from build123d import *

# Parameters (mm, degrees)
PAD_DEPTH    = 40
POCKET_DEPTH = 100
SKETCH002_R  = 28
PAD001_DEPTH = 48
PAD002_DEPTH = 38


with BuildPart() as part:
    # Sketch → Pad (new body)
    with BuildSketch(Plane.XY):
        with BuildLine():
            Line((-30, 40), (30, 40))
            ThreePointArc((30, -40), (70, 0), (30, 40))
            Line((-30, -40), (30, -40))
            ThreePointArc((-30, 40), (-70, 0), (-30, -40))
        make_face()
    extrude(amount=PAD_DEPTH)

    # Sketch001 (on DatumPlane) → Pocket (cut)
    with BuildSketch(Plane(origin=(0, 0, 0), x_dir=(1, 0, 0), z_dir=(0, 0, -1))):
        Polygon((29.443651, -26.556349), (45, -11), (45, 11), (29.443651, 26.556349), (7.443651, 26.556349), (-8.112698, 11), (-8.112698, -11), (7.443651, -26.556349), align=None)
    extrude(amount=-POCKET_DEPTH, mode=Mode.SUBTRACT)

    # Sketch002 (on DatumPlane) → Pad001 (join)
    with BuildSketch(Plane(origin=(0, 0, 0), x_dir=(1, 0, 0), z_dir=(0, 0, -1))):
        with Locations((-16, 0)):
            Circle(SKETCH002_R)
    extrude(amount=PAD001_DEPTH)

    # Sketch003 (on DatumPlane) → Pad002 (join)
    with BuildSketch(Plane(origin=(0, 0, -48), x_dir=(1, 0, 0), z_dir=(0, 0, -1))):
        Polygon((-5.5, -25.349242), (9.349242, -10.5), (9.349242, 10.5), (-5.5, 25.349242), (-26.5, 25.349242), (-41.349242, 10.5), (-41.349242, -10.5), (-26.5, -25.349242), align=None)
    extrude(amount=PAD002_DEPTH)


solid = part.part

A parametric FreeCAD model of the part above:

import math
import FreeCAD as App
import Part
import Sketcher

V = App.Vector

doc = App.newDocument("Part")
body = doc.addObject("PartDesign::Body", "Body")

# Sketch on XY plane
sketch1 = body.newObject("Sketcher::SketchObject", "Sketch")
sketch1.AttachmentSupport = (doc.getObject("XY_Plane"), [""])
sketch1.MapMode = "FlatFace"
sketch1.addGeometry(Part.LineSegment(V(30, 40, 0), V(-30, 40, 0)), False)
sketch1.addGeometry(Part.ArcOfCircle(Part.Circle(V(-30, 0, 0), V(0, 0, 1), 40), math.radians(90), math.radians(270)), False)
sketch1.addGeometry(Part.LineSegment(V(-30, -40, 0), V(30, -40, 0)), False)
sketch1.addGeometry(Part.ArcOfCircle(Part.Circle(V(30, 0, 0), V(0, 0, 1), 40), math.radians(-90), math.radians(90)), False)
sketch1.addConstraint(Sketcher.Constraint("Tangent", 0, 2, 1, 1))
sketch1.addConstraint(Sketcher.Constraint("Tangent", 1, 2, 2, 1))
sketch1.addConstraint(Sketcher.Constraint("Tangent", 2, 2, 3, 1))
sketch1.addConstraint(Sketcher.Constraint("Tangent", 3, 2, 0, 1))
sketch1.addConstraint(Sketcher.Constraint("Horizontal", 0))
sketch1.addConstraint(Sketcher.Constraint("Horizontal", 2))
sketch1.addConstraint(Sketcher.Constraint("Symmetric", 1, 3, 3, 3, -1, 1))
sketch1.addConstraint(Sketcher.Constraint("Radius", 1, 40.0))
sketch1.addConstraint(Sketcher.Constraint("DistanceX", 0, 2, 0, 1, 60.0))
pad1 = body.newObject("PartDesign::Pad", "Pad")
pad1.Profile = sketch1
pad1.Length = 40

# Sketch on XY plane
sketch2 = body.newObject("Sketcher::SketchObject", "Sketch001")
sketch2.AttachmentSupport = (doc.getObject("XY_Plane"), [""])
sketch2.MapMode = "FlatFace"
sketch2.addGeometry(Part.LineSegment(V(29, 27, 0), V(45, 11, 0)), False)
sketch2.addGeometry(Part.LineSegment(V(45, 11, 0), V(45, -11, 0)), False)
sketch2.addGeometry(Part.LineSegment(V(45, -11, 0), V(29, -27, 0)), False)
sketch2.addGeometry(Part.LineSegment(V(29, -27, 0), V(7, -27, 0)), False)
sketch2.addGeometry(Part.LineSegment(V(7, -27, 0), V(-8, -11, 0)), False)
sketch2.addGeometry(Part.LineSegment(V(-8, -11, 0), V(-8, 11, 0)), False)
sketch2.addGeometry(Part.LineSegment(V(-8, 11, 0), V(7, 27, 0)), False)
sketch2.addGeometry(Part.LineSegment(V(7, 27, 0), V(29, 27, 0)), False)
sketch2.addConstraint(Sketcher.Constraint("Coincident", 0, 2, 1, 1))
sketch2.addConstraint(Sketcher.Constraint("Coincident", 1, 2, 2, 1))
sketch2.addConstraint(Sketcher.Constraint("Coincident", 2, 2, 3, 1))
sketch2.addConstraint(Sketcher.Constraint("Coincident", 3, 2, 4, 1))
sketch2.addConstraint(Sketcher.Constraint("Coincident", 4, 2, 5, 1))
sketch2.addConstraint(Sketcher.Constraint("Coincident", 5, 2, 6, 1))
sketch2.addConstraint(Sketcher.Constraint("Coincident", 6, 2, 7, 1))
sketch2.addConstraint(Sketcher.Constraint("Coincident", 7, 2, 0, 1))
sketch2.addConstraint(Sketcher.Constraint("Vertical", 1))
sketch2.addConstraint(Sketcher.Constraint("Horizontal", 3))
sketch2.addConstraint(Sketcher.Constraint("Vertical", 5))
sketch2.addConstraint(Sketcher.Constraint("Horizontal", 7))
sketch2.addConstraint(Sketcher.Constraint("Symmetric", 3, 2, 6, 2, -1))
sketch2.addConstraint(Sketcher.Constraint("Perpendicular", 0, 2))
sketch2.addConstraint(Sketcher.Constraint("Perpendicular", 2, 4))
sketch2.addConstraint(Sketcher.Constraint("Perpendicular", 4, 6))
sketch2.addConstraint(Sketcher.Constraint("Horizontal", 1, 2, 4, 2))
sketch2.addConstraint(Sketcher.Constraint("Horizontal", 0, 2, 5, 2))
sketch2.addConstraint(Sketcher.Constraint("Vertical", 2, 2, 7, 2))
sketch2.addConstraint(Sketcher.Constraint("Equal", 7, 1))
sketch2.addConstraint(Sketcher.Constraint("DistanceX", 3, 2, 3, 1, 22.0))
sketch2.addConstraint(Sketcher.Constraint("Distance", 0, 22.0))
sketch2.addConstraint(Sketcher.Constraint("DistanceX", -1, 1, 0, 2, 45.0))
pocket1 = body.newObject("PartDesign::Pocket", "Pocket")
pocket1.Profile = sketch2
pocket1.Length = 100
pocket1.Reversed = True

# Sketch on XY plane
sketch3 = body.newObject("Sketcher::SketchObject", "Sketch002")
sketch3.AttachmentSupport = (doc.getObject("XY_Plane"), [""])
sketch3.MapMode = "FlatFace"
sketch3.addGeometry(Part.Circle(V(-16, 0, 0), V(0, 0, 1), 28), False)
sketch3.addConstraint(Sketcher.Constraint("PointOnObject", 0, 3, -1))
sketch3.addConstraint(Sketcher.Constraint("Diameter", 0, 56.0))
sketch3.addConstraint(Sketcher.Constraint("DistanceX", 0, 3, -1, 1, 16.0))
pad2 = body.newObject("PartDesign::Pad", "Pad001")
pad2.Profile = sketch3
pad2.Length = 48
pad2.Reversed = True

# Sketch on XY plane
sketch4 = body.newObject("Sketcher::SketchObject", "Sketch003")
sketch4.AttachmentSupport = (doc.getObject("XY_Plane"), [""])
sketch4.MapMode = "FlatFace"
sketch4.AttachmentOffset = App.Placement(V(0, 0, -48), App.Rotation())
sketch4.addGeometry(Part.LineSegment(V(-6, 25, 0), V(9, 10, 0)), False)
sketch4.addGeometry(Part.LineSegment(V(9, 10, 0), V(9, -10, 0)), False)
sketch4.addGeometry(Part.LineSegment(V(9, -10, 0), V(-6, -25, 0)), False)
sketch4.addGeometry(Part.LineSegment(V(-6, -25, 0), V(-26, -25, 0)), False)
sketch4.addGeometry(Part.LineSegment(V(-26, -25, 0), V(-41, -10, 0)), False)
sketch4.addGeometry(Part.LineSegment(V(-41, -10, 0), V(-41, 10, 0)), False)
sketch4.addGeometry(Part.LineSegment(V(-41, 10, 0), V(-26, 25, 0)), False)
sketch4.addGeometry(Part.LineSegment(V(-26, 25, 0), V(-6, 25, 0)), False)
sketch4.addConstraint(Sketcher.Constraint("Coincident", 0, 2, 1, 1))
sketch4.addConstraint(Sketcher.Constraint("Coincident", 1, 2, 2, 1))
sketch4.addConstraint(Sketcher.Constraint("Coincident", 2, 2, 3, 1))
sketch4.addConstraint(Sketcher.Constraint("Coincident", 3, 2, 4, 1))
sketch4.addConstraint(Sketcher.Constraint("Coincident", 4, 2, 5, 1))
sketch4.addConstraint(Sketcher.Constraint("Coincident", 5, 2, 6, 1))
sketch4.addConstraint(Sketcher.Constraint("Coincident", 6, 2, 7, 1))
sketch4.addConstraint(Sketcher.Constraint("Coincident", 7, 2, 0, 1))
sketch4.addConstraint(Sketcher.Constraint("Vertical", 1))
sketch4.addConstraint(Sketcher.Constraint("Horizontal", 3))
sketch4.addConstraint(Sketcher.Constraint("Vertical", 5))
sketch4.addConstraint(Sketcher.Constraint("Horizontal", 7))
sketch4.addConstraint(Sketcher.Constraint("Symmetric", 3, 2, 6, 2, -1))
sketch4.addConstraint(Sketcher.Constraint("Perpendicular", 0, 2))
sketch4.addConstraint(Sketcher.Constraint("Perpendicular", 2, 4))
sketch4.addConstraint(Sketcher.Constraint("Perpendicular", 4, 6))
sketch4.addConstraint(Sketcher.Constraint("Horizontal", 1, 2, 4, 2))
sketch4.addConstraint(Sketcher.Constraint("Horizontal", 0, 2, 5, 2))
sketch4.addConstraint(Sketcher.Constraint("Vertical", 2, 2, 7, 2))
sketch4.addConstraint(Sketcher.Constraint("Equal", 7, 1))
sketch4.addConstraint(Sketcher.Constraint("DistanceX", 3, 2, 3, 1, 21.0))
sketch4.addConstraint(Sketcher.Constraint("Distance", 0, 20.999999))
sketch4.addConstraint(Sketcher.Constraint("DistanceX", 2, 2, -1, 1, 5.5))
pad3 = body.newObject("PartDesign::Pad", "Pad002")
pad3.Profile = sketch4
pad3.Length = 38
pad3.Reversed = True

doc.recompute()
